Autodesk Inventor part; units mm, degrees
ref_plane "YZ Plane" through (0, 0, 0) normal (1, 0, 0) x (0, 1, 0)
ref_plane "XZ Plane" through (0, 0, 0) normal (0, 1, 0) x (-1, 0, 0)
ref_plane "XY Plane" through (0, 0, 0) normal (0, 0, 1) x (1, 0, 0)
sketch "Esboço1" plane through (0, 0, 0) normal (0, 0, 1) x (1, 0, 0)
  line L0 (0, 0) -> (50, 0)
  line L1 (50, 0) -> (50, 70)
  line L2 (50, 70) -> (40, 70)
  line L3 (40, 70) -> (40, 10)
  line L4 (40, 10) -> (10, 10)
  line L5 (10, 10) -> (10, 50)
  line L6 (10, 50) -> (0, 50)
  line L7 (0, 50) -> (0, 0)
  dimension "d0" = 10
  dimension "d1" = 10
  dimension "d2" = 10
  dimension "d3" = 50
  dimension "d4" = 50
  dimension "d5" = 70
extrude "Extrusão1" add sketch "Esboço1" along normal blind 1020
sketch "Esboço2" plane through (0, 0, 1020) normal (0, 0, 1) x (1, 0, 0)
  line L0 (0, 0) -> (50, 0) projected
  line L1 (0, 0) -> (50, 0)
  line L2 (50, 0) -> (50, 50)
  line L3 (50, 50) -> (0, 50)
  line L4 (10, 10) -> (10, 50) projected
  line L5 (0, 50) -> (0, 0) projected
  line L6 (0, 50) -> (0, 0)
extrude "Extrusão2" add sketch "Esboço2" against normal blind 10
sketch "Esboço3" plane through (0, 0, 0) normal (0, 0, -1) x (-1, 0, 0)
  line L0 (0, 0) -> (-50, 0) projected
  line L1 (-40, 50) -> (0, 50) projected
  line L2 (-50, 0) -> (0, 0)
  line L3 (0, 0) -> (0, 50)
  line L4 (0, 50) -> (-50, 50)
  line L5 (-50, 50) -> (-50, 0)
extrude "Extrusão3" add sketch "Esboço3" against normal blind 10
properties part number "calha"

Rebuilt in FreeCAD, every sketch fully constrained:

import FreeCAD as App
import Part
import Sketcher

V = App.Vector


def add_polygon(sketch, points):
    """Adds a closed chain of lines whose ends are joined by coincident constraints."""
    first, n = sketch.GeometryCount, len(points)
    for a, b in zip(points, points[1:] + points[:1]):
        sketch.addGeometry(Part.LineSegment(App.Vector(*a, 0), App.Vector(*b, 0)), False)
    for i in range(n):
        sketch.addConstraint(Sketcher.Constraint("Coincident", first + i, 2, first + (i + 1) % n, 1))

doc = App.newDocument("Part")
body = doc.addObject("PartDesign::Body", "Body")

sketch1 = body.newObject("Sketcher::SketchObject", "Sketch")
sketch1.AttachmentSupport = (doc.getObject("XY_Plane"), [""])
sketch1.MapMode = "FlatFace"
add_polygon(sketch1, [(0, 50), (0, 0), (50, 0), (50, 70), (40, 70), (40, 10), (10, 10), (10, 50)])
sketch1.addConstraint([
    Sketcher.Constraint("Vertical", 0),
    Sketcher.Constraint("Horizontal", 1),
    Sketcher.Constraint("Vertical", 2),
    Sketcher.Constraint("Horizontal", 3),
    Sketcher.Constraint("Vertical", 4),
    Sketcher.Constraint("Horizontal", 5),
    Sketcher.Constraint("Vertical", 6),
    Sketcher.Constraint("Horizontal", 7),
    Sketcher.Constraint("Coincident", 0, 2, -1, 1),
    Sketcher.Constraint("Equal", 3, 7),
    Sketcher.Constraint("Equal", 1, 0),
    Sketcher.Constraint("DistanceX", 1, 1, 1, 2, 50.0),
    Sketcher.Constraint("DistanceX", 3, 2, 3, 1, 10.0),
    Sketcher.Constraint("DistanceY", 2, 1, 2, 2, 70.0),
    Sketcher.Constraint("DistanceY", -1, 1, 4, 2, 10.0),
])
pad1 = body.newObject("PartDesign::Pad", "Pad")
pad1.Profile = sketch1
pad1.Length = 1020

sketch2 = body.newObject("Sketcher::SketchObject", "Sketch001")
sketch2.AttachmentSupport = (doc.getObject("XY_Plane"), [""])
sketch2.MapMode = "FlatFace"
sketch2.AttachmentOffset = App.Placement(V(0, 0, 1020), App.Rotation())
add_polygon(sketch2, [(0, 50), (0, 0), (50, 0), (50, 50)])
sketch2.addConstraint([
    Sketcher.Constraint("Vertical", 0),
    Sketcher.Constraint("Horizontal", 1),
    Sketcher.Constraint("Vertical", 2),
    Sketcher.Constraint("Horizontal", 3),
    Sketcher.Constraint("Coincident", 0, 2, -1, 1),
    Sketcher.Constraint("Equal", 3, 0),
    Sketcher.Constraint("DistanceX", 1, 1, 1, 2, 50.0),
])
pad2 = body.newObject("PartDesign::Pad", "Pad001")
pad2.Profile = sketch2
pad2.Length = 10
pad2.Reversed = True

sketch3 = body.newObject("Sketcher::SketchObject", "Sketch002")
sketch3.AttachmentSupport = (doc.getObject("XY_Plane"), [""])
sketch3.MapMode = "FlatFace"
add_polygon(sketch3, [(50, 0), (0, 0), (0, 50), (50, 50)])
sketch3.addConstraint([
    Sketcher.Constraint("Horizontal", 0),
    Sketcher.Constraint("Vertical", 1),
    Sketcher.Constraint("Horizontal", 2),
    Sketcher.Constraint("Vertical", 3),
    Sketcher.Constraint("Coincident", 0, 2, -1, 1),
    Sketcher.Constraint("Equal", 2, 1),
    Sketcher.Constraint("DistanceX", 0, 2, 0, 1, 50.0),
])
pad3 = body.newObject("PartDesign::Pad", "Pad002")
pad3.Profile = sketch3
pad3.Length = 10

doc.recompute()
